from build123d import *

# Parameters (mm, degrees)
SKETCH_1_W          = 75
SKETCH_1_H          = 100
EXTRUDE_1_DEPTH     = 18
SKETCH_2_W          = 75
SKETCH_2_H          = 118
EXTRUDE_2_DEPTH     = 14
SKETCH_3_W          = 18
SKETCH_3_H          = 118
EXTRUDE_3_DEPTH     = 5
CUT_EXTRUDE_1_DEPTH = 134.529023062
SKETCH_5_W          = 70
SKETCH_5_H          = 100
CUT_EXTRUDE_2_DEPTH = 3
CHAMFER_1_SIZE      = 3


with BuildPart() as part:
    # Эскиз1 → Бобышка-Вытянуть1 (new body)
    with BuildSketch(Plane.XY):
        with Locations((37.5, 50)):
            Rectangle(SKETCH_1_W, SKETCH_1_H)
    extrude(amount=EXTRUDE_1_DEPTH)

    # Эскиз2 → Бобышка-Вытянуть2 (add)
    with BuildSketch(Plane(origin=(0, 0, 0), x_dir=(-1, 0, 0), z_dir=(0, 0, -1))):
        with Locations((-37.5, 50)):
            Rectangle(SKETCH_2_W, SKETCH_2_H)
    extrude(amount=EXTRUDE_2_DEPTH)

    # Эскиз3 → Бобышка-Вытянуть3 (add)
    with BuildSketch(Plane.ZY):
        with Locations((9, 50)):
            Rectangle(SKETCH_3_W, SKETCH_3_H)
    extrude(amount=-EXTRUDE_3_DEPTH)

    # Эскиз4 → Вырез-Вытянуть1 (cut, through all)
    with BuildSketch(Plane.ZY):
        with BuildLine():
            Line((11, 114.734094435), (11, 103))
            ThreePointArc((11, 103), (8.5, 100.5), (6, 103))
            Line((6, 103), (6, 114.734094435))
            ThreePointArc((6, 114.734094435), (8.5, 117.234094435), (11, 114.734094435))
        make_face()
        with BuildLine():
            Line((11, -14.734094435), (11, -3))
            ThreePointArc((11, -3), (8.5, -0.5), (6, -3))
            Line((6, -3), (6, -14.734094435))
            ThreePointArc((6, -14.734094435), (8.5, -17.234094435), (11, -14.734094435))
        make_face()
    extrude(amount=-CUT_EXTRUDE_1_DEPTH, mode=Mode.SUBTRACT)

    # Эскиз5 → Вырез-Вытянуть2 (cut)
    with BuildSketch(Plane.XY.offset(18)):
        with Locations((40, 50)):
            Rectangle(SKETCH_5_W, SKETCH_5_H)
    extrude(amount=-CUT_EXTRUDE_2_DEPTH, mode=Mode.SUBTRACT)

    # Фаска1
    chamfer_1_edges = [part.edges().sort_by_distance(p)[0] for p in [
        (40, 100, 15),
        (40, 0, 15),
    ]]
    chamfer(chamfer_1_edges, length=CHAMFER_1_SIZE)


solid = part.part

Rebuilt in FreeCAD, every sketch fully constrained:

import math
import FreeCAD as App
import Part
import Sketcher
from FreeCAD import Vector


def edges_at(feature, points):
    """Names of the edges that pass closest to the given points."""
    edges = feature.Shape.Edges
    near = lambda p: min(range(len(edges)), key=lambda i: edges[i].distToShape(Part.Vertex(*p))[0])
    return sorted({f"Edge{near(p) + 1}" for p in points})

doc = App.newDocument("Part")
body = doc.addObject("PartDesign::Body", "Body")

# Sketch on XY plane
sketch1 = doc.addObject("Sketcher::SketchObject", "Sketch")
body.addObject(sketch1)
sketch1.AttachmentSupport = (doc.XY_Plane, [""])
sketch1.MapMode = "FlatFace"
sketch1.addGeometry([
    Part.LineSegment(Vector(0, 100, 0), Vector(0, 0, 0)),
    Part.LineSegment(Vector(0, 0, 0), Vector(75, 0, 0)),
    Part.LineSegment(Vector(75, 0, 0), Vector(75, 100, 0)),
    Part.LineSegment(Vector(75, 100, 0), Vector(0, 100, 0)),
], False)
sketch1.addConstraint([
    Sketcher.Constraint("Coincident", 0, 2, 1, 1),
    Sketcher.Constraint("Coincident", 1, 2, 2, 1),
    Sketcher.Constraint("Coincident", 2, 2, 3, 1),
    Sketcher.Constraint("Coincident", 3, 2, 0, 1),
    Sketcher.Constraint("Vertical", 0),
    Sketcher.Constraint("Horizontal", 1),
    Sketcher.Constraint("Vertical", 2),
    Sketcher.Constraint("Horizontal", 3),
    Sketcher.Constraint("Coincident", 0, 2, -1, 1),
    Sketcher.Constraint("DistanceX", 1, 1, 1, 2, 75.0),
    Sketcher.Constraint("DistanceY", 0, 2, 0, 1, 100.0),
])
pad1 = doc.addObject("PartDesign::Pad", "Pad")
body.addObject(pad1)
pad1.Profile = sketch1
pad1.Length = 18

# Sketch on XY plane
sketch2 = doc.addObject("Sketcher::SketchObject", "Sketch001")
body.addObject(sketch2)
sketch2.AttachmentSupport = (doc.XY_Plane, [""])
sketch2.MapMode = "FlatFace"
sketch2.addGeometry([
    Part.LineSegment(Vector(75, 109, 0), Vector(75, -9, 0)),
    Part.LineSegment(Vector(75, -9, 0), Vector(0, -9, 0)),
    Part.LineSegment(Vector(0, -9, 0), Vector(0, 109, 0)),
    Part.LineSegment(Vector(0, 109, 0), Vector(75, 109, 0)),
], False)
sketch2.addConstraint([
    Sketcher.Constraint("Coincident", 0, 2, 1, 1),
    Sketcher.Constraint("Coincident", 1, 2, 2, 1),
    Sketcher.Constraint("Coincident", 2, 2, 3, 1),
    Sketcher.Constraint("Coincident", 3, 2, 0, 1),
    Sketcher.Constraint("Vertical", 0),
    Sketcher.Constraint("Horizontal", 1),
    Sketcher.Constraint("Vertical", 2),
    Sketcher.Constraint("Horizontal", 3),
    Sketcher.Constraint("PointOnObject", 1, 2, -2),
    Sketcher.Constraint("DistanceX", 1, 2, 1, 1, 75.0),
    Sketcher.Constraint("DistanceY", 0, 2, 0, 1, 118.0),
    Sketcher.Constraint("DistanceY", 0, 2, -1, 1, 9.0),
])
pad2 = doc.addObject("PartDesign::Pad", "Pad001")
body.addObject(pad2)
pad2.Profile = sketch2
pad2.Length = 14
pad2.Reversed = True

# Sketch on YZ plane
sketch3 = doc.addObject("Sketcher::SketchObject", "Sketch002")
body.addObject(sketch3)
sketch3.AttachmentSupport = (doc.YZ_Plane, [""])
sketch3.MapMode = "FlatFace"
sketch3.addGeometry([
    Part.LineSegment(Vector(109, 0, 0), Vector(-9, 0, 0)),
    Part.LineSegment(Vector(-9, 0, 0), Vector(-9, 18, 0)),
    Part.LineSegment(Vector(-9, 18, 0), Vector(109, 18, 0)),
    Part.LineSegment(Vector(109, 18, 0), Vector(109, 0, 0)),
], False)
sketch3.addConstraint([
    Sketcher.Constraint("Coincident", 0, 2, 1, 1),
    Sketcher.Constraint("Coincident", 1, 2, 2, 1),
    Sketcher.Constraint("Coincident", 2, 2, 3, 1),
    Sketcher.Constraint("Coincident", 3, 2, 0, 1),
    Sketcher.Constraint("Horizontal", 0),
    Sketcher.Constraint("Vertical", 1),
    Sketcher.Constraint("Horizontal", 2),
    Sketcher.Constraint("Vertical", 3),
    Sketcher.Constraint("PointOnObject", 0, 2, -1),
    Sketcher.Constraint("DistanceX", 0, 2, 0, 1, 118.0),
    Sketcher.Constraint("DistanceY", 1, 1, 1, 2, 18.0),
    Sketcher.Constraint("DistanceX", 0, 2, -1, 1, 9.0),
])
pad3 = doc.addObject("PartDesign::Pad", "Pad002")
body.addObject(pad3)
pad3.Profile = sketch3
pad3.Length = 5

# Sketch on YZ plane
sketch4 = doc.addObject("Sketcher::SketchObject", "Sketch003")
body.addObject(sketch4)
sketch4.AttachmentSupport = (doc.YZ_Plane, [""])
sketch4.MapMode = "FlatFace"
sketch4.addGeometry([
    Part.LineSegment(Vector(103, 11, 0), Vector(114.7, 11, 0)),  # 0
    Part.ArcOfCircle(Part.Circle(Vector(114.7, 8.5, 0), Vector(0, 0, 1), 2.5), math.radians(-90), math.radians(90)),  # 1
    Part.LineSegment(Vector(114.7, 6, 0), Vector(103, 6, 0)),  # 2
    Part.ArcOfCircle(Part.Circle(Vector(103, 8.5, 0), Vector(0, 0, 1), 2.5), math.radians(90), math.radians(270)),  # 3
    Part.LineSegment(Vector(-14.7, 11, 0), Vector(-3, 11, 0)),  # 4
    Part.ArcOfCircle(Part.Circle(Vector(-3, 8.5, 0), Vector(0, 0, 1), 2.5), math.radians(-90), math.radians(90)),  # 5
    Part.LineSegment(Vector(-3, 6, 0), Vector(-14.7, 6, 0)),  # 6
    Part.ArcOfCircle(Part.Circle(Vector(-14.7, 8.5, 0), Vector(0, 0, 1), 2.5), math.radians(90), math.radians(270)),  # 7
], False)
sketch4.addConstraint([
    Sketcher.Constraint("Tangent", 0, 2, 1, 2),
    Sketcher.Constraint("Tangent", 1, 1, 2, 1),
    Sketcher.Constraint("Tangent", 2, 2, 3, 2),
    Sketcher.Constraint("Tangent", 3, 1, 0, 1),
    Sketcher.Constraint("Tangent", 4, 2, 5, 2),
    Sketcher.Constraint("Tangent", 5, 1, 6, 1),
    Sketcher.Constraint("Tangent", 6, 2, 7, 2),
    Sketcher.Constraint("Tangent", 7, 1, 4, 1),
    Sketcher.Constraint("Horizontal", 0),
    Sketcher.Constraint("Horizontal", 2),
    Sketcher.Constraint("Horizontal", 4),
    Sketcher.Constraint("Horizontal", 6),
    Sketcher.Constraint("Equal", 3, 5),
    Sketcher.Constraint("Horizontal", 3, 3, 5, 3),
    Sketcher.Constraint("Equal", 2, 4),
    Sketcher.Constraint("Radius", 1, 2.5),
    Sketcher.Constraint("DistanceX", -1, 1, 3, 3, 103.0),
    Sketcher.Constraint("DistanceX", 5, 3, -1, 1, 3.0),
    Sketcher.Constraint("DistanceY", -1, 1, 0, 2, 11.0),
    Sketcher.Constraint("DistanceX", 0, 1, 0, 2, 11.734094),
])
pocket1 = doc.addObject("PartDesign::Pocket", "Pocket")
body.addObject(pocket1)
pocket1.Profile = sketch4
pocket1.Type = "ThroughAll"
pocket1.Reversed = True

# Sketch on XY plane
sketch5 = doc.addObject("Sketcher::SketchObject", "Sketch004")
body.addObject(sketch5)
sketch5.AttachmentSupport = (doc.XY_Plane, [""])
sketch5.MapMode = "FlatFace"
sketch5.AttachmentOffset = App.Placement(Vector(0, 0, 18), App.Rotation())
sketch5.addGeometry([
    Part.LineSegment(Vector(5, 100, 0), Vector(5, 0, 0)),
    Part.LineSegment(Vector(5, 0, 0), Vector(75, 0, 0)),
    Part.LineSegment(Vector(75, 0, 0), Vector(75, 100, 0)),
    Part.LineSegment(Vector(75, 100, 0), Vector(5, 100, 0)),
], False)
sketch5.addConstraint([
    Sketcher.Constraint("Coincident", 0, 2, 1, 1),
    Sketcher.Constraint("Coincident", 1, 2, 2, 1),
    Sketcher.Constraint("Coincident", 2, 2, 3, 1),
    Sketcher.Constraint("Coincident", 3, 2, 0, 1),
    Sketcher.Constraint("Vertical", 0),
    Sketcher.Constraint("Horizontal", 1),
    Sketcher.Constraint("Vertical", 2),
    Sketcher.Constraint("Horizontal", 3),
    Sketcher.Constraint("PointOnObject", 0, 2, -1),
    Sketcher.Constraint("DistanceX", 1, 1, 1, 2, 70.0),
    Sketcher.Constraint("DistanceY", 0, 2, 0, 1, 100.0),
    Sketcher.Constraint("DistanceX", -1, 1, 0, 2, 5.0),
])
pocket2 = doc.addObject("PartDesign::Pocket", "Pocket001")
body.addObject(pocket2)
pocket2.Profile = sketch5
pocket2.Length = 3
doc.recompute()

chamfer = doc.addObject("PartDesign::Chamfer", "Chamfer")
body.addObject(chamfer)
chamfer.Base = (pocket2, edges_at(pocket2, [(40, 100, 15), (40, 0, 15)]))
chamfer.Size = 3

doc.recompute()
